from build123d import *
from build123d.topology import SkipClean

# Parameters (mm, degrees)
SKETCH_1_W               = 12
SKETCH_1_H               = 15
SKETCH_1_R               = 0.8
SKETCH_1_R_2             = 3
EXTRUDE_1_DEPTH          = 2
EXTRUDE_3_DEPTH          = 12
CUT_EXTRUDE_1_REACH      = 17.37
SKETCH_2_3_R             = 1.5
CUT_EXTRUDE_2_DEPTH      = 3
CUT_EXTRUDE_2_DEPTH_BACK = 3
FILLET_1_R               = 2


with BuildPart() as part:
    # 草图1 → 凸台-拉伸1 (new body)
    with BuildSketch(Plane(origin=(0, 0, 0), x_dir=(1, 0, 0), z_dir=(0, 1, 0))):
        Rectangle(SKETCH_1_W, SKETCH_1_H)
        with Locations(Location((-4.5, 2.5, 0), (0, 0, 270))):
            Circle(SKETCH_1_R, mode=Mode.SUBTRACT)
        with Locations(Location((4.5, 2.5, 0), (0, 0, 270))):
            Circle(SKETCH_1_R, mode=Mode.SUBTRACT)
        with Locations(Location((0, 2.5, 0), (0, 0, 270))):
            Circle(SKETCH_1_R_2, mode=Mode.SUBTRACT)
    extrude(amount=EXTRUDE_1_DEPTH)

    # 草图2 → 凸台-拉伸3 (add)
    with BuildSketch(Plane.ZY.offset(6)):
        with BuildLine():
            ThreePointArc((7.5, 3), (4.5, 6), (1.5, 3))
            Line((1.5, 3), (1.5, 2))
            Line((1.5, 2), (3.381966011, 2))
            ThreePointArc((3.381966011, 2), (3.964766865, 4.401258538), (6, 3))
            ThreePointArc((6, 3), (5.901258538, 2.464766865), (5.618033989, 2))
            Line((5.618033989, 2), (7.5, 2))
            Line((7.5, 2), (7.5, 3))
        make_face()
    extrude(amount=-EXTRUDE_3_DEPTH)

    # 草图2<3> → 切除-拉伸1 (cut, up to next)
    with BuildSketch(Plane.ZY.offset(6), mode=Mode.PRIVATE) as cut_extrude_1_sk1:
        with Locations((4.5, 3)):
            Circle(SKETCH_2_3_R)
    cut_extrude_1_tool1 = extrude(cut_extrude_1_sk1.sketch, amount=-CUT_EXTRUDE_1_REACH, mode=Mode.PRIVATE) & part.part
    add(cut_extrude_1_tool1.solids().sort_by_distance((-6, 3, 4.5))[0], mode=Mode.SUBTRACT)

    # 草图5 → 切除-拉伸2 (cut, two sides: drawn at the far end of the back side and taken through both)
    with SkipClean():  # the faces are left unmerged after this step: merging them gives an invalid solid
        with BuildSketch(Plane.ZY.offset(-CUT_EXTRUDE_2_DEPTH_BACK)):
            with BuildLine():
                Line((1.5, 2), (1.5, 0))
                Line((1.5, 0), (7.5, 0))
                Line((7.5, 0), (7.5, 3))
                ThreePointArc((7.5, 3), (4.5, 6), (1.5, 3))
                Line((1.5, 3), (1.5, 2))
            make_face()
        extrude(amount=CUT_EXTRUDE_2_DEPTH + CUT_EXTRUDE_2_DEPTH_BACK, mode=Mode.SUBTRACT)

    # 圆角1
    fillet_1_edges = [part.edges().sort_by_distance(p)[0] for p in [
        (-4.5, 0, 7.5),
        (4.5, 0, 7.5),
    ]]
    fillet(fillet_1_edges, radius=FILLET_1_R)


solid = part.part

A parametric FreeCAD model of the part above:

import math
import FreeCAD as App
import Part
import Sketcher

V = App.Vector


def edges_at(feature, points):
    """Names of the edges that pass closest to the given points."""
    edges = feature.Shape.Edges
    near = lambda p: min(range(len(edges)), key=lambda i: edges[i].distToShape(Part.Vertex(*p))[0])
    return sorted({f"Edge{near(p) + 1}" for p in points})

doc = App.newDocument("Part")
body = doc.addObject("PartDesign::Body", "Body")

# Sketch on XZ plane
sketch1 = body.newObject("Sketcher::SketchObject", "Sketch")
sketch1.AttachmentSupport = (doc.getObject("XZ_Plane"), [""])
sketch1.MapMode = "FlatFace"
sketch1.addGeometry(Part.LineSegment(V(-6, -7.5, 0), V(-6, 7.5, 0)), False)
sketch1.addGeometry(Part.LineSegment(V(-6, 7.5, 0), V(6, 7.5, 0)), False)
sketch1.addGeometry(Part.LineSegment(V(6, 7.5, 0), V(6, -7.5, 0)), False)
sketch1.addGeometry(Part.LineSegment(V(6, -7.5, 0), V(-6, -7.5, 0)), False)
sketch1.addGeometry(Part.Circle(V(-4.5, -2.5, 0), V(0, 0, 1), 0.8), False)
sketch1.addGeometry(Part.Circle(V(0, -2.5, 0), V(0, 0, 1), 3), False)
sketch1.addGeometry(Part.Circle(V(4.5, -2.5, 0), V(0, 0, 1), 0.8), False)
sketch1.addConstraint(Sketcher.Constraint("Coincident", 0, 2, 1, 1))
sketch1.addConstraint(Sketcher.Constraint("Coincident", 1, 2, 2, 1))
sketch1.addConstraint(Sketcher.Constraint("Coincident", 2, 2, 3, 1))
sketch1.addConstraint(Sketcher.Constraint("Coincident", 3, 2, 0, 1))
sketch1.addConstraint(Sketcher.Constraint("Vertical", 0))
sketch1.addConstraint(Sketcher.Constraint("Horizontal", 1))
sketch1.addConstraint(Sketcher.Constraint("Vertical", 2))
sketch1.addConstraint(Sketcher.Constraint("Horizontal", 3))
sketch1.addConstraint(Sketcher.Constraint("Equal", 4, 6))
sketch1.addConstraint(Sketcher.Constraint("Symmetric", 0, 2, 2, 2, -1, 1))
sketch1.addConstraint(Sketcher.Constraint("Symmetric", 4, 3, 6, 3, -2))
sketch1.addConstraint(Sketcher.Constraint("PointOnObject", 5, 3, -2))
sketch1.addConstraint(Sketcher.Constraint("Horizontal", 4, 3, 5, 3))
sketch1.addConstraint(Sketcher.Constraint("Diameter", 5, 6.0))
sketch1.addConstraint(Sketcher.Constraint("Diameter", 4, 1.6))
sketch1.addConstraint(Sketcher.Constraint("DistanceX", 1, 1, 1, 2, 12.0))
sketch1.addConstraint(Sketcher.Constraint("DistanceY", 0, 1, 0, 2, 15.0))
sketch1.addConstraint(Sketcher.Constraint("DistanceX", 4, 3, 6, 3, 9.0))
sketch1.addConstraint(Sketcher.Constraint("DistanceY", 4, 3, 0, 2, 10.0))
pad1 = body.newObject("PartDesign::Pad", "Pad")
pad1.Profile = sketch1
pad1.Length = 2
pad1.Reversed = True

# Sketch on YZ plane
sketch2 = body.newObject("Sketcher::SketchObject", "Sketch001")
sketch2.AttachmentSupport = (doc.getObject("YZ_Plane"), [""])
sketch2.MapMode = "FlatFace"
sketch2.AttachmentOffset = App.Placement(V(0, 0, -6), App.Rotation())
sketch2.addGeometry(Part.ArcOfCircle(Part.Circle(V(3, 4.5, 0), V(0, 0, 1), 3), math.radians(-90), math.radians(90)), False)
sketch2.addGeometry(Part.LineSegment(V(3, 1.5, 0), V(2, 1.5, 0)), False)
sketch2.addGeometry(Part.LineSegment(V(2, 1.5, 0), V(2, 3.4, 0)), False)
sketch2.addGeometry(Part.ArcOfCircle(Part.Circle(V(3, 4.5, 0), V(0, 0, 1), 1.5), math.radians(-132), math.radians(90)), False)
sketch2.addGeometry(Part.ArcOfCircle(Part.Circle(V(3, 4.5, 0), V(0, 0, 1), 1.5), math.radians(90), math.radians(132)), False)
sketch2.addGeometry(Part.LineSegment(V(2, 5.6, 0), V(2, 7.5, 0)), False)
sketch2.addGeometry(Part.LineSegment(V(2, 7.5, 0), V(3, 7.5, 0)), False)
sketch2.addConstraint(Sketcher.Constraint("Tangent", 0, 1, 1, 1))
sketch2.addConstraint(Sketcher.Constraint("Coincident", 1, 2, 2, 1))
sketch2.addConstraint(Sketcher.Constraint("Coincident", 2, 2, 3, 1))
sketch2.addConstraint(Sketcher.Constraint("Tangent", 3, 2, 4, 1))
sketch2.addConstraint(Sketcher.Constraint("Coincident", 4, 2, 5, 1))
sketch2.addConstraint(Sketcher.Constraint("Coincident", 5, 2, 6, 1))
sketch2.addConstraint(Sketcher.Constraint("Tangent", 6, 2, 0, 2))
sketch2.addConstraint(Sketcher.Constraint("Horizontal", 1))
sketch2.addConstraint(Sketcher.Constraint("Vertical", 2))
sketch2.addConstraint(Sketcher.Constraint("Vertical", 5))
sketch2.addConstraint(Sketcher.Constraint("Horizontal", 6))
sketch2.addConstraint(Sketcher.Constraint("Coincident", 3, 3, 0, 3))
sketch2.addConstraint(Sketcher.Constraint("Equal", 3, 4))
sketch2.addConstraint(Sketcher.Constraint("Vertical", 0, 1, 3, 2))
sketch2.addConstraint(Sketcher.Constraint("Vertical", 2, 2, 4, 2))
sketch2.addConstraint(Sketcher.Constraint("Radius", 0, 3.0))
sketch2.addConstraint(Sketcher.Constraint("Radius", 3, 1.5))
sketch2.addConstraint(Sketcher.Constraint("DistanceX", 1, 2, 1, 1, 1.0))
sketch2.addConstraint(Sketcher.Constraint("DistanceX", -1, 1, 0, 3, 3.0))
sketch2.addConstraint(Sketcher.Constraint("DistanceY", -1, 1, 3, 2, 6.0))
pad2 = body.newObject("PartDesign::Pad", "Pad001")
pad2.Profile = sketch2
pad2.Length = 12

# Sketch on YZ plane
sketch3 = body.newObject("Sketcher::SketchObject", "Sketch002")
sketch3.AttachmentSupport = (doc.getObject("YZ_Plane"), [""])
sketch3.MapMode = "FlatFace"
sketch3.AttachmentOffset = App.Placement(V(0, 0, -6), App.Rotation())
sketch3.addGeometry(Part.Circle(V(3, 4.5, 0), V(0, 0, 1), 1.5), False)
sketch3.addConstraint(Sketcher.Constraint("Diameter", 0, 3.0))
sketch3.addConstraint(Sketcher.Constraint("DistanceX", -1, 1, 0, 3, 3.0))
sketch3.addConstraint(Sketcher.Constraint("DistanceY", -1, 1, 0, 3, 4.5))
pocket1 = body.newObject("PartDesign::Pocket", "Pocket")
pocket1.Profile = sketch3
pocket1.Length = 12
pocket1.Reversed = True

# Sketch on YZ plane
sketch4 = body.newObject("Sketcher::SketchObject", "Sketch003")
sketch4.AttachmentSupport = (doc.getObject("YZ_Plane"), [""])
sketch4.MapMode = "FlatFace"
sketch4.addGeometry(Part.LineSegment(V(0, 1.5, 0), V(0, 7.5, 0)), False)
sketch4.addGeometry(Part.LineSegment(V(0, 7.5, 0), V(3, 7.5, 0)), False)
sketch4.addGeometry(Part.ArcOfCircle(Part.Circle(V(3, 4.5, 0), V(0, 0, 1), 3), math.radians(-90), math.radians(90)), False)
sketch4.addGeometry(Part.LineSegment(V(3, 1.5, 0), V(0, 1.5, 0)), False)
sketch4.addConstraint(Sketcher.Constraint("Coincident", 0, 2, 1, 1))
sketch4.addConstraint(Sketcher.Constraint("Tangent", 1, 2, 2, 2))
sketch4.addConstraint(Sketcher.Constraint("Tangent", 2, 1, 3, 1))
sketch4.addConstraint(Sketcher.Constraint("Coincident", 3, 2, 0, 1))
sketch4.addConstraint(Sketcher.Constraint("Vertical", 0))
sketch4.addConstraint(Sketcher.Constraint("Horizontal", 1))
sketch4.addConstraint(Sketcher.Constraint("Horizontal", 3))
sketch4.addConstraint(Sketcher.Constraint("PointOnObject", 0, 2, -2))
sketch4.addConstraint(Sketcher.Constraint("Radius", 2, 3.0))
sketch4.addConstraint(Sketcher.Constraint("DistanceX", 1, 1, 1, 2, 3.0))
sketch4.addConstraint(Sketcher.Constraint("DistanceY", -1, 1, 2, 3, 4.5))
pocket2 = body.newObject("PartDesign::Pocket", "Pocket001")
pocket2.Profile = sketch4
pocket2.Type = "TwoLengths"
pocket2.Length = 3
pocket2.Length2 = 3
doc.recompute()

fillet = body.newObject("PartDesign::Fillet", "Fillet")
fillet.Base = (pocket2, edges_at(pocket2, [(-4.5, 0, 7.5), (4.5, 0, 7.5)]))
fillet.Radius = 2

doc.recompute()
